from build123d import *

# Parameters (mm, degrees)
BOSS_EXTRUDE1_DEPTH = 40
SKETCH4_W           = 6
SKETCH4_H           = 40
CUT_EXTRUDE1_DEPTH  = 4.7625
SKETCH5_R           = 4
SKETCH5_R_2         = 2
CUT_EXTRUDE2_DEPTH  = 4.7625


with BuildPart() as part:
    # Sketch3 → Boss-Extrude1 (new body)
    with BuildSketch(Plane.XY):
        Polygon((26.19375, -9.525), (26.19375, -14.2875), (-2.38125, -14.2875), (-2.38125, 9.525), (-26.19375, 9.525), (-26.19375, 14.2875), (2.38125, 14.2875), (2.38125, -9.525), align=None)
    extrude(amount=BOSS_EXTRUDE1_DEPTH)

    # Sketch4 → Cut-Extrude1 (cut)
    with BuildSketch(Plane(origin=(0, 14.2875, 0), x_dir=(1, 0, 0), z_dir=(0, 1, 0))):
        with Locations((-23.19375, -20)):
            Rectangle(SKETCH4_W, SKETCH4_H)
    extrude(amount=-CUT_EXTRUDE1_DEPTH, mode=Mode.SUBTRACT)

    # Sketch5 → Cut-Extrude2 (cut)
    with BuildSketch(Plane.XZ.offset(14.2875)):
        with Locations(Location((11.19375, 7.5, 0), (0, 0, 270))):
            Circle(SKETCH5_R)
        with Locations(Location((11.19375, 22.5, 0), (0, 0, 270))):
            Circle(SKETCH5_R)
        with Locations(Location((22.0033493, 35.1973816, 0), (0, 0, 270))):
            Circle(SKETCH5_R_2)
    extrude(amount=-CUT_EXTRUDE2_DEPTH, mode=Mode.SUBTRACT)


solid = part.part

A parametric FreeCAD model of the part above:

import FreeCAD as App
import Part
import Sketcher

doc = App.newDocument("Part")
params = doc.addObject("Spreadsheet::Sheet", "Params")
for row, (alias, value) in enumerate([
    ("pad1_length", "40 mm"),
    ("sketch2_width", "6 mm"),
    ("sketch2_height", "40 mm"),
    ("pocket1_length", "4.7625 mm"),
    ("sketch3_diameter", "8 mm"),
    ("sketch3_diameter2", "4 mm"),
    ("pocket2_length", "4.7625 mm"),
], start=1):
    params.set(f"A{row}", alias)
    params.set(f"B{row}", "=" + value)
    params.setAlias(f"B{row}", alias)

body = doc.addObject("PartDesign::Body", "Body")

sketch1 = body.newObject("Sketcher::SketchObject", "Sketch")
sketch1.AttachmentSupport = (doc.getObject("XY_Plane"), [""])
sketch1.MapMode = "FlatFace"
sketch1.addGeometry(Part.LineSegment(App.Vector(26.2, -14.3, 0), App.Vector(26.2, -9.5, 0)), False)
sketch1.addGeometry(Part.LineSegment(App.Vector(26.2, -9.5, 0), App.Vector(2.4, -9.5, 0)), False)
sketch1.addGeometry(Part.LineSegment(App.Vector(2.4, -9.5, 0), App.Vector(2.4, 14.3, 0)), False)
sketch1.addGeometry(Part.LineSegment(App.Vector(2.4, 14.3, 0), App.Vector(-26.2, 14.3, 0)), False)
sketch1.addGeometry(Part.LineSegment(App.Vector(-26.2, 14.3, 0), App.Vector(-26.2, 9.5, 0)), False)
sketch1.addGeometry(Part.LineSegment(App.Vector(-26.2, 9.5, 0), App.Vector(-2.4, 9.5, 0)), False)
sketch1.addGeometry(Part.LineSegment(App.Vector(-2.4, 9.5, 0), App.Vector(-2.4, -14.3, 0)), False)
sketch1.addGeometry(Part.LineSegment(App.Vector(-2.4, -14.3, 0), App.Vector(26.2, -14.3, 0)), False)
sketch1.addConstraint(Sketcher.Constraint("Coincident", 0, 2, 1, 1))
sketch1.addConstraint(Sketcher.Constraint("Coincident", 1, 2, 2, 1))
sketch1.addConstraint(Sketcher.Constraint("Coincident", 2, 2, 3, 1))
sketch1.addConstraint(Sketcher.Constraint("Coincident", 3, 2, 4, 1))
sketch1.addConstraint(Sketcher.Constraint("Coincident", 4, 2, 5, 1))
sketch1.addConstraint(Sketcher.Constraint("Coincident", 5, 2, 6, 1))
sketch1.addConstraint(Sketcher.Constraint("Coincident", 6, 2, 7, 1))
sketch1.addConstraint(Sketcher.Constraint("Coincident", 7, 2, 0, 1))
sketch1.addConstraint(Sketcher.Constraint("Vertical", 0))
sketch1.addConstraint(Sketcher.Constraint("Horizontal", 1))
sketch1.addConstraint(Sketcher.Constraint("Vertical", 2))
sketch1.addConstraint(Sketcher.Constraint("Horizontal", 3))
sketch1.addConstraint(Sketcher.Constraint("Vertical", 4))
sketch1.addConstraint(Sketcher.Constraint("Horizontal", 5))
sketch1.addConstraint(Sketcher.Constraint("Vertical", 6))
sketch1.addConstraint(Sketcher.Constraint("Horizontal", 7))
sketch1.addConstraint(Sketcher.Constraint("Symmetric", 0, 2, 4, 2, -1, 1))
sketch1.addConstraint(Sketcher.Constraint("Symmetric", 2, 2, 6, 2, -1, 1))
sketch1.addConstraint(Sketcher.Constraint("Equal", 5, 2))
sketch1.addConstraint(Sketcher.Constraint("DistanceX", 3, 2, 3, 1, 28.575))
sketch1.addConstraint(Sketcher.Constraint("DistanceY", 1, 2, 4, 2, 19.05))
sketch1.addConstraint(Sketcher.Constraint("DistanceX", 1, 2, 1, 1, 23.8125))
pad1 = body.newObject("PartDesign::Pad", "Pad")
pad1.Profile = sketch1
pad1.setExpression("Length", "Params.pad1_length")

sketch2 = body.newObject("Sketcher::SketchObject", "Sketch001")
sketch2.AttachmentSupport = (doc.getObject("XZ_Plane"), [""])
sketch2.MapMode = "FlatFace"
sketch2.AttachmentOffset = App.Placement(App.Vector(0, 0, -14.2875), App.Rotation())
sketch2.addGeometry(Part.LineSegment(App.Vector(-26, 0, 0), App.Vector(-26, 40, 0)), False)
sketch2.addGeometry(Part.LineSegment(App.Vector(-26, 40, 0), App.Vector(-20, 40, 0)), False)
sketch2.addGeometry(Part.LineSegment(App.Vector(-20, 40, 0), App.Vector(-20, 0, 0)), False)
sketch2.addGeometry(Part.LineSegment(App.Vector(-20, 0, 0), App.Vector(-26, 0, 0)), False)
sketch2.addConstraint(Sketcher.Constraint("Coincident", 0, 2, 1, 1))
sketch2.addConstraint(Sketcher.Constraint("Coincident", 1, 2, 2, 1))
sketch2.addConstraint(Sketcher.Constraint("Coincident", 2, 2, 3, 1))
sketch2.addConstraint(Sketcher.Constraint("Coincident", 3, 2, 0, 1))
sketch2.addConstraint(Sketcher.Constraint("Vertical", 0))
sketch2.addConstraint(Sketcher.Constraint("Horizontal", 1))
sketch2.addConstraint(Sketcher.Constraint("Vertical", 2))
sketch2.addConstraint(Sketcher.Constraint("Horizontal", 3))
sketch2.addConstraint(Sketcher.Constraint("PointOnObject", 2, 2, -1))
sketch2.addConstraint(Sketcher.Constraint("DistanceX", 1, 1, 1, 2, 6.0))
sketch2.addConstraint(Sketcher.Constraint("DistanceY", 0, 1, 0, 2, 40.0))
sketch2.addConstraint(Sketcher.Constraint("DistanceX", 0, 2, -1, 1, 26.19375))
sketch2.setExpression("Constraints[9]", "Params.sketch2_width")
sketch2.setExpression("Constraints[10]", "Params.sketch2_height")
pocket1 = body.newObject("PartDesign::Pocket", "Pocket")
pocket1.Profile = sketch2
pocket1.setExpression("Length", "Params.pocket1_length")
pocket1.Reversed = True

sketch3 = body.newObject("Sketcher::SketchObject", "Sketch002")
sketch3.AttachmentSupport = (doc.getObject("XZ_Plane"), [""])
sketch3.MapMode = "FlatFace"
sketch3.AttachmentOffset = App.Placement(App.Vector(0, 0, 14.2875), App.Rotation())
sketch3.addGeometry(Part.Circle(App.Vector(11.2, 7.5, 0), App.Vector(0, 0, 1), 4), False)
sketch3.addGeometry(Part.Circle(App.Vector(11.2, 22.5, 0), App.Vector(0, 0, 1), 4), False)
sketch3.addGeometry(Part.Circle(App.Vector(22, 35.2, 0), App.Vector(0, 0, 1), 2), False)
sketch3.addConstraint(Sketcher.Constraint("Equal", 0, 1))
sketch3.addConstraint(Sketcher.Constraint("Vertical", 0, 3, 1, 3))
sketch3.addConstraint(Sketcher.Constraint("Diameter", 0, 8.0))
sketch3.addConstraint(Sketcher.Constraint("Diameter", 2, 4.0))
sketch3.addConstraint(Sketcher.Constraint("DistanceY", 0, 3, 1, 3, 15.0))
sketch3.addConstraint(Sketcher.Constraint("DistanceY", -1, 1, 0, 3, 7.5))
sketch3.addConstraint(Sketcher.Constraint("DistanceX", 1, 3, 2, 3, 10.809599))
sketch3.addConstraint(Sketcher.Constraint("DistanceX", -1, 1, 0, 3, 11.19375))
sketch3.addConstraint(Sketcher.Constraint("DistanceY", -1, 1, 2, 3, 35.197382))
sketch3.setExpression("Constraints[2]", "Params.sketch3_diameter")
sketch3.setExpression("Constraints[3]", "Params.sketch3_diameter2")
pocket2 = body.newObject("PartDesign::Pocket", "Pocket001")
pocket2.Profile = sketch3
pocket2.setExpression("Length", "Params.pocket2_length")

doc.recompute()
